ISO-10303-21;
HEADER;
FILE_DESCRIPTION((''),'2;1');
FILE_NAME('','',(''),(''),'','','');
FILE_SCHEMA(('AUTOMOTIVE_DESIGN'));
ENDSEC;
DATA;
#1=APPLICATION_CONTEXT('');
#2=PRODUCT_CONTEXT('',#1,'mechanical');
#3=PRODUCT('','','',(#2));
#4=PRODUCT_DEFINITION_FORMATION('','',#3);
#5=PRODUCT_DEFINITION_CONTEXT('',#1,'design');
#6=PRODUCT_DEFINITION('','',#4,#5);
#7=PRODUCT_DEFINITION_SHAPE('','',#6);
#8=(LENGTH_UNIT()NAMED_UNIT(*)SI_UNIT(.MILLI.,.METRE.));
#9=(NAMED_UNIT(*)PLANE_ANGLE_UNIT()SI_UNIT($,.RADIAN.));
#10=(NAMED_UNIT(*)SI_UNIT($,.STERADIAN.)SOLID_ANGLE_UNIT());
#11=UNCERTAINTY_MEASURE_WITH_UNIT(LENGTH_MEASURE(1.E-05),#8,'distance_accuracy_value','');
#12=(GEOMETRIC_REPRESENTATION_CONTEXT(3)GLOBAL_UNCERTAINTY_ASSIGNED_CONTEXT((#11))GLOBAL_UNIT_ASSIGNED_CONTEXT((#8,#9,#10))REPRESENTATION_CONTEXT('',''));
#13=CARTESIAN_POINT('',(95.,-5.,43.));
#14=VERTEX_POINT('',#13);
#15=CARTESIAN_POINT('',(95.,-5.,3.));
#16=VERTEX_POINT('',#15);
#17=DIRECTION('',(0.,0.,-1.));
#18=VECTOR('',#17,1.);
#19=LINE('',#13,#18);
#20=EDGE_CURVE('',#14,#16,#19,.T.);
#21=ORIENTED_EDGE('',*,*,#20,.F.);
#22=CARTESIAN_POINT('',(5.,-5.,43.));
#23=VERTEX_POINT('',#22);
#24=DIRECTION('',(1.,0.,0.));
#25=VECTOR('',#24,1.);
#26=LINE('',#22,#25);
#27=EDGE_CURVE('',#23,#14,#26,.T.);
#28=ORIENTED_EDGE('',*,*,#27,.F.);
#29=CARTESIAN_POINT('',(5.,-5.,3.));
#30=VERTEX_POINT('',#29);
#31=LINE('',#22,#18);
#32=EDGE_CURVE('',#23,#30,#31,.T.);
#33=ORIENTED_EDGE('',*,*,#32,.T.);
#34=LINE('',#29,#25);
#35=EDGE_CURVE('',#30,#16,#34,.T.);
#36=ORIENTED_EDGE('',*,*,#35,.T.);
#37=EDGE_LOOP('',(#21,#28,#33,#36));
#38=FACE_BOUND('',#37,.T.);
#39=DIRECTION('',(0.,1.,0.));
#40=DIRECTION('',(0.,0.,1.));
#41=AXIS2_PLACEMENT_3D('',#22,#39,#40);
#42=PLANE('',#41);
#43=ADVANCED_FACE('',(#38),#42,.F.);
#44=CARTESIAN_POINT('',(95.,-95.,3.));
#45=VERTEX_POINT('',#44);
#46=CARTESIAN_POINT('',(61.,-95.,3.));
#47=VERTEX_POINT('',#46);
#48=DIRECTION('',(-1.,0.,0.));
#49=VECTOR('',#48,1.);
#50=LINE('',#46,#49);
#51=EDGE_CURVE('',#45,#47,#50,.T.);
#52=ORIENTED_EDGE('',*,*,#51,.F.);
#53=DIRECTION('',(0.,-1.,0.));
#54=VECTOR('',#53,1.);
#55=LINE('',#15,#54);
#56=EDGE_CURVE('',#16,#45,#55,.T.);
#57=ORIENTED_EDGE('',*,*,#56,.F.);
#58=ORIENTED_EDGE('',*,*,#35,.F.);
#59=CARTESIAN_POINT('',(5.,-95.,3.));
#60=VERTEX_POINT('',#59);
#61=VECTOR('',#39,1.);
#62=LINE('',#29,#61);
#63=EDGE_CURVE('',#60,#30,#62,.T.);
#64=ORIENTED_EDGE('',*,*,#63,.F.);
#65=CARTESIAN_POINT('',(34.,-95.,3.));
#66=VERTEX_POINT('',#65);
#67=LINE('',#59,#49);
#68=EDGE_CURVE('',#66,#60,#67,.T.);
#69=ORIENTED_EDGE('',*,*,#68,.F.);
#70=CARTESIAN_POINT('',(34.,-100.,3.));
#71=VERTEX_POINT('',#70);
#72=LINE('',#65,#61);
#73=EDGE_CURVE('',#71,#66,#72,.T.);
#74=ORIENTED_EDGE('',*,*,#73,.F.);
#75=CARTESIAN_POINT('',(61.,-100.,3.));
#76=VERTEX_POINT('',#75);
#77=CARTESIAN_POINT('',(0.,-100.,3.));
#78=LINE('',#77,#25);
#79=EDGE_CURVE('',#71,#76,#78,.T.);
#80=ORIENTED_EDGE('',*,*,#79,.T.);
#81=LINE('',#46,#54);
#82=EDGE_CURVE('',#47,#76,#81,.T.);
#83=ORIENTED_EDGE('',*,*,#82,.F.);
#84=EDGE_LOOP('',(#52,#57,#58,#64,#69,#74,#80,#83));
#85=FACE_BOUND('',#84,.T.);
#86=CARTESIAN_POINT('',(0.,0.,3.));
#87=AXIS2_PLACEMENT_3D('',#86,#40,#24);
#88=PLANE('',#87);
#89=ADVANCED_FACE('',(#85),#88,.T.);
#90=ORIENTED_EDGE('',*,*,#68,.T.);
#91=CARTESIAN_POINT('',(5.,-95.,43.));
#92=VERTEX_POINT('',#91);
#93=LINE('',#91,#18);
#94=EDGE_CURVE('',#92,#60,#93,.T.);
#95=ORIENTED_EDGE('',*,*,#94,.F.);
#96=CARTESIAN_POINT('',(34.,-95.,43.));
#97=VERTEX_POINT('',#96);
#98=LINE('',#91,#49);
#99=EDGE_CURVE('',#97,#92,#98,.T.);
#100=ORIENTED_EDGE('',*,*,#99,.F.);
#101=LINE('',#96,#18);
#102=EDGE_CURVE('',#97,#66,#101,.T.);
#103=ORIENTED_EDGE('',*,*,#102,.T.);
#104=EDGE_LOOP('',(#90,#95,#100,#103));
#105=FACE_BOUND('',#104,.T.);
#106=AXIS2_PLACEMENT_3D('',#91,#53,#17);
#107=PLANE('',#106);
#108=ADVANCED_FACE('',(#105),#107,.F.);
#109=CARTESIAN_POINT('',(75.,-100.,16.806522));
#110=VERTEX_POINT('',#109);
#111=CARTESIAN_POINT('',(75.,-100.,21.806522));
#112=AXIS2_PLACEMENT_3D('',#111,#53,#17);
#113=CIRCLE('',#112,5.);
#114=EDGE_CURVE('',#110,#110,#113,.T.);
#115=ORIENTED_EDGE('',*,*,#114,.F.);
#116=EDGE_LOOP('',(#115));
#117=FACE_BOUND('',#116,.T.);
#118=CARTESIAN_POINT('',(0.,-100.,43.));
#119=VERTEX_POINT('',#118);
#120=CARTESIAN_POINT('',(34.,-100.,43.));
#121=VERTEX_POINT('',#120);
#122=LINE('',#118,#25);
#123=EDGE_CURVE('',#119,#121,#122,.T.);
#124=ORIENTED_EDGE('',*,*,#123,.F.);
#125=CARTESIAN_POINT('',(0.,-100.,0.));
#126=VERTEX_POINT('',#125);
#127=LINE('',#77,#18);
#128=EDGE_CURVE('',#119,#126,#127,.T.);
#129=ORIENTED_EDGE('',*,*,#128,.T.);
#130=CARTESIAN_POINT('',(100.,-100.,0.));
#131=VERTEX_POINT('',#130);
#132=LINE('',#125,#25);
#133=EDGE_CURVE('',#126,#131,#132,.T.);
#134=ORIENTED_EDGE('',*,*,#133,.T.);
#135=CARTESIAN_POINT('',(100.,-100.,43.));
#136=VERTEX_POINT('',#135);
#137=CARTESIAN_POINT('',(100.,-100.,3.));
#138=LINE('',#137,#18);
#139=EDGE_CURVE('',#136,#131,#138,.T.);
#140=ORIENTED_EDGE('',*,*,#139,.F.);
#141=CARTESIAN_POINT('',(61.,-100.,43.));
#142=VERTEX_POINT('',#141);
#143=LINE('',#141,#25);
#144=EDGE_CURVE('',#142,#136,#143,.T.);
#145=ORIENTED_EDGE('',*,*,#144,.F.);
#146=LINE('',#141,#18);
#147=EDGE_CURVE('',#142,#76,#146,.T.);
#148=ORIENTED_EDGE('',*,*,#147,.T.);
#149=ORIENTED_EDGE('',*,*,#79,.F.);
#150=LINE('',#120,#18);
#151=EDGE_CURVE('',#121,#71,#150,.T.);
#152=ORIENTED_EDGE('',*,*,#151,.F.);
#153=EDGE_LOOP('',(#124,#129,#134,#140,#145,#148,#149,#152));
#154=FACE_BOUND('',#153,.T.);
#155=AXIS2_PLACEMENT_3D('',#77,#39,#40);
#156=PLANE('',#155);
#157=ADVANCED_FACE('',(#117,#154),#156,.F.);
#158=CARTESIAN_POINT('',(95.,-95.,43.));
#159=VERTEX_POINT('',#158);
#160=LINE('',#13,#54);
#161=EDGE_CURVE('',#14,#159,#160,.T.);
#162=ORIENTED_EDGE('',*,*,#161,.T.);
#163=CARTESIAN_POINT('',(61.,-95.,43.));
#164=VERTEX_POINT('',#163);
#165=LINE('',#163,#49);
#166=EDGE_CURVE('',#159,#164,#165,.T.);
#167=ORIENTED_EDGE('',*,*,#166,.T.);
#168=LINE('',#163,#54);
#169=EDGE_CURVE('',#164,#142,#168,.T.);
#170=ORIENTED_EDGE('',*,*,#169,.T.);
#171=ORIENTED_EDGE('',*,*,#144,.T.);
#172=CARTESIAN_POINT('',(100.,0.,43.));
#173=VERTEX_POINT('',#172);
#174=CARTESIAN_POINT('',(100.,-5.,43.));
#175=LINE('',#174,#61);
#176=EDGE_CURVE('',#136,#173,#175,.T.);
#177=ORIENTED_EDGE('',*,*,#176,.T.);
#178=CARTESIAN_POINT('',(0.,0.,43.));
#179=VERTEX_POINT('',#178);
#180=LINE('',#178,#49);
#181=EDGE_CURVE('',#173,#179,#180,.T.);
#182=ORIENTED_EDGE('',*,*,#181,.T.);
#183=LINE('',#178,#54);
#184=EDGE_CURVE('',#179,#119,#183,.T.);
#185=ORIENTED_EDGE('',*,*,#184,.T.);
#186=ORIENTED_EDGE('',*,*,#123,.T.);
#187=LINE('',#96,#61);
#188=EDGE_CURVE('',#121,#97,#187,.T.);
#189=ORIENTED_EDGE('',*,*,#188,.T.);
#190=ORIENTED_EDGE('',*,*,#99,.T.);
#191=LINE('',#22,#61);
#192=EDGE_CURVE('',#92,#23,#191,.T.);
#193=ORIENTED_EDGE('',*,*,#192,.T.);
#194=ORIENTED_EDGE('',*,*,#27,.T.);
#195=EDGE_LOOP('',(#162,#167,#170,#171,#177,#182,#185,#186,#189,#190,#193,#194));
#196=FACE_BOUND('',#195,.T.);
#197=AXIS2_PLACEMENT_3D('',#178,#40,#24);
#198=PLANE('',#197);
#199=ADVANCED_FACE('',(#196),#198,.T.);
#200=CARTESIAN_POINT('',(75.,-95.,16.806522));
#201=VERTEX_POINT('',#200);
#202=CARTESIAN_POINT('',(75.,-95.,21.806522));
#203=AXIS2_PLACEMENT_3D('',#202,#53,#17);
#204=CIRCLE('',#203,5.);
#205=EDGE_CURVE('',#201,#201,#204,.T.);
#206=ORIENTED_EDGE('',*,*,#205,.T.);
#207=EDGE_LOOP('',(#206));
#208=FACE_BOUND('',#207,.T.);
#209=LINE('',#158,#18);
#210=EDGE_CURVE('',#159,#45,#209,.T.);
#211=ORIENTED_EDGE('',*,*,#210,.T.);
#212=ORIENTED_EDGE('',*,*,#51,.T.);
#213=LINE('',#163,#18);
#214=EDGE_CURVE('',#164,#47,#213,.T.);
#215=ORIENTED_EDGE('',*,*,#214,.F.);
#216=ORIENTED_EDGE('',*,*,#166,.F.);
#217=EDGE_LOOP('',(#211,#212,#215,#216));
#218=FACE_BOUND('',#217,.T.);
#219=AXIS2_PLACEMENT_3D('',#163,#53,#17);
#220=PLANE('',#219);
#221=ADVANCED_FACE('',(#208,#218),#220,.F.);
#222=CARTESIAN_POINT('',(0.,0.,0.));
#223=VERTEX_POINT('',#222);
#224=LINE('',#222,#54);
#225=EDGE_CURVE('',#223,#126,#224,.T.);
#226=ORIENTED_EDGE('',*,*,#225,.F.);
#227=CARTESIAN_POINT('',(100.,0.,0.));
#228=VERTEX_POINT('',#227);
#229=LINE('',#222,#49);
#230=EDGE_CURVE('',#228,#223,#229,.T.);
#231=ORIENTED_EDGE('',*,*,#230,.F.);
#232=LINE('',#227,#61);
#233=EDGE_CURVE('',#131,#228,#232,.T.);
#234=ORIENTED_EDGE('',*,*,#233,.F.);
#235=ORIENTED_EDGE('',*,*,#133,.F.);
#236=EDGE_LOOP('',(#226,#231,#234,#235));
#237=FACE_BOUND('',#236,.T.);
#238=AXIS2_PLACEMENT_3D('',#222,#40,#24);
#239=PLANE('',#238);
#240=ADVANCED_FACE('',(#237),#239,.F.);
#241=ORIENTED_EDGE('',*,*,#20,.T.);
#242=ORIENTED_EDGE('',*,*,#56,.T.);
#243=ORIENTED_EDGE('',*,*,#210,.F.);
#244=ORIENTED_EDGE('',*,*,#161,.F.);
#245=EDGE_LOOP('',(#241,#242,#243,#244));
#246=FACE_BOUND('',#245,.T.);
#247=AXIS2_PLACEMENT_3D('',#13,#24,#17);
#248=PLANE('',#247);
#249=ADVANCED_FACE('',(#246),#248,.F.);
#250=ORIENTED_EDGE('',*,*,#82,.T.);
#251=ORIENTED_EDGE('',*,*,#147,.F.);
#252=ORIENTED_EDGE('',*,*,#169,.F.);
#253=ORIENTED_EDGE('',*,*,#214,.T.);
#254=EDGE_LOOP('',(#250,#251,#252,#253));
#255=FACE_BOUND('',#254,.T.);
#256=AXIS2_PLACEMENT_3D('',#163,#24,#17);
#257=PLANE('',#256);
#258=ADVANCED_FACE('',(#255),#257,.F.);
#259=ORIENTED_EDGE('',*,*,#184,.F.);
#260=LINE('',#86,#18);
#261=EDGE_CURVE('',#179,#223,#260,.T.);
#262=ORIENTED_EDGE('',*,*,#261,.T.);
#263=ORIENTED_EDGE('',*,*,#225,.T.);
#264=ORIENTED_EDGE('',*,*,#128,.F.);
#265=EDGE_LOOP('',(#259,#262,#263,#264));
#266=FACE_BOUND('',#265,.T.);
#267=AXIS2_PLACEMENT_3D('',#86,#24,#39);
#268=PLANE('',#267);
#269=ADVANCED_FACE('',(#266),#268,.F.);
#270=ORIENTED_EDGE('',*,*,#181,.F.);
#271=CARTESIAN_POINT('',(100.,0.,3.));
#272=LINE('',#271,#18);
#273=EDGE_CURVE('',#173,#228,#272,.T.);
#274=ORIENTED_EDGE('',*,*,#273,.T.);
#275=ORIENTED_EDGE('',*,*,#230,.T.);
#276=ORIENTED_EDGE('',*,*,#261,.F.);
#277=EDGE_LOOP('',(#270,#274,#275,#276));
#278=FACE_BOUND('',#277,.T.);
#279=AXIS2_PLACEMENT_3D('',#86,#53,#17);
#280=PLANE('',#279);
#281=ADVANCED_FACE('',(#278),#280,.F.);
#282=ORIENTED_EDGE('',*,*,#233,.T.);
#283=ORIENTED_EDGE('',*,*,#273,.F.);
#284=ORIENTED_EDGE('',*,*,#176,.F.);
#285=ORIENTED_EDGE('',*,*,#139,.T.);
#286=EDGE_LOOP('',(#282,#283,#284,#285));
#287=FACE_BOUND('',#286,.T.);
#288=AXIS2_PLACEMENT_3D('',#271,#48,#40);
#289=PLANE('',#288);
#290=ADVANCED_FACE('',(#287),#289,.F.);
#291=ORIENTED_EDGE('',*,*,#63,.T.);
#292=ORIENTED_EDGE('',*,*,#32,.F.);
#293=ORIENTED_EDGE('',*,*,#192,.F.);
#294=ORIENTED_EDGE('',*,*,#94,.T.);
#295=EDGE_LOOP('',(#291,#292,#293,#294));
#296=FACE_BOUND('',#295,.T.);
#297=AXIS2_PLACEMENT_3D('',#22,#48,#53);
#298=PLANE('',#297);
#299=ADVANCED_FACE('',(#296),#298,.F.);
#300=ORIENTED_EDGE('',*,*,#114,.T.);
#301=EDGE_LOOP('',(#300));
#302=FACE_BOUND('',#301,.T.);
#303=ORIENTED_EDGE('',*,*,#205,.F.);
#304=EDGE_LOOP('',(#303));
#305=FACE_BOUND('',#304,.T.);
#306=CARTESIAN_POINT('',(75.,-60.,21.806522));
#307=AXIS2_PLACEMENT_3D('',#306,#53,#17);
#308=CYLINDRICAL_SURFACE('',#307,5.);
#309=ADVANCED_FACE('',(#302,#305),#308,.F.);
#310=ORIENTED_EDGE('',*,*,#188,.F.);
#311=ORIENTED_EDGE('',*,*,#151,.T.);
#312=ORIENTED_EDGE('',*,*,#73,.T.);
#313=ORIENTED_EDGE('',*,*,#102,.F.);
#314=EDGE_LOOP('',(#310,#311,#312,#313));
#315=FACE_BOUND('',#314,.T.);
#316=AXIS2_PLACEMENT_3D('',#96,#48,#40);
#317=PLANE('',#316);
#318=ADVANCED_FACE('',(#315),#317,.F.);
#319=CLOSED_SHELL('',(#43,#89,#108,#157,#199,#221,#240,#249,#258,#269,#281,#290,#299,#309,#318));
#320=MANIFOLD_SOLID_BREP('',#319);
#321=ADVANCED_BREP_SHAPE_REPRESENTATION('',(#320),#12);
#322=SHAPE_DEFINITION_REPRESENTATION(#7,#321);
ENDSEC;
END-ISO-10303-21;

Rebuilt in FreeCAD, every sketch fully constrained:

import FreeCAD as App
import Part
import Sketcher
Q = App.Units.Quantity

doc = App.newDocument("Part")
body = doc.addObject("PartDesign::Body", "Body")

# Sketch on XY plane
sketch1 = body.newObject("Sketcher::SketchObject", "Sketch")
sketch1.AttachmentSupport = (doc.getObject("XY_Plane"), [""])
sketch1.MapMode = "FlatFace"
sketch1.addGeometry([
    Part.LineSegment(App.Vector(0, 0, 0), App.Vector(0, -100, 0)),
    Part.LineSegment(App.Vector(0, -100, 0), App.Vector(100, -100, 0)),
    Part.LineSegment(App.Vector(100, -100, 0), App.Vector(100, 0, 0)),
    Part.LineSegment(App.Vector(100, 0, 0), App.Vector(0, 0, 0)),
], False)
sketch1.addConstraint([
    Sketcher.Constraint("Coincident", 0, 2, 1, 1),
    Sketcher.Constraint("Coincident", 1, 2, 2, 1),
    Sketcher.Constraint("Coincident", 2, 2, 3, 1),
    Sketcher.Constraint("Coincident", 3, 2, 0, 1),
    Sketcher.Constraint("Vertical", 0),
    Sketcher.Constraint("Horizontal", 1),
    Sketcher.Constraint("Vertical", 2),
    Sketcher.Constraint("Horizontal", 3),
    Sketcher.Constraint("Coincident", 3, 2, -1, 1),
    Sketcher.Constraint("Equal", 3, 0),
    Sketcher.Constraint("DistanceX", 1, 1, 1, 2, Q("100 mm")),
])
pad1 = body.newObject("PartDesign::Pad", "Pad")
pad1.Profile = sketch1
pad1.Length = 3

# Sketch on XY plane
sketch2 = body.newObject("Sketcher::SketchObject", "Sketch001")
sketch2.AttachmentSupport = (doc.getObject("XY_Plane"), [""])
sketch2.MapMode = "FlatFace"
sketch2.AttachmentOffset = App.Placement(App.Vector(0, 0, 3), App.Rotation())
sketch2.addGeometry([
    Part.LineSegment(App.Vector(100, 0, 0), App.Vector(0, 0, 0)),  # 0
    Part.LineSegment(App.Vector(0, 0, 0), App.Vector(0, -100, 0)),  # 1
    Part.LineSegment(App.Vector(0, -100, 0), App.Vector(34, -100, 0)),  # 2
    Part.LineSegment(App.Vector(34, -100, 0), App.Vector(34, -95, 0)),  # 3
    Part.LineSegment(App.Vector(34, -95, 0), App.Vector(5, -95, 0)),  # 4
    Part.LineSegment(App.Vector(5, -95, 0), App.Vector(5, -5, 0)),  # 5
    Part.LineSegment(App.Vector(5, -5, 0), App.Vector(95, -5, 0)),  # 6
    Part.LineSegment(App.Vector(95, -5, 0), App.Vector(95, -95, 0)),  # 7
    Part.LineSegment(App.Vector(95, -95, 0), App.Vector(61, -95, 0)),  # 8
    Part.LineSegment(App.Vector(61, -95, 0), App.Vector(61, -100, 0)),  # 9
    Part.LineSegment(App.Vector(61, -100, 0), App.Vector(100, -100, 0)),  # 10
    Part.LineSegment(App.Vector(100, -100, 0), App.Vector(100, 0, 0)),  # 11
], False)
sketch2.addConstraint([
    Sketcher.Constraint("Coincident", 0, 2, 1, 1),
    Sketcher.Constraint("Coincident", 1, 2, 2, 1),
    Sketcher.Constraint("Coincident", 2, 2, 3, 1),
    Sketcher.Constraint("Coincident", 3, 2, 4, 1),
    Sketcher.Constraint("Coincident", 4, 2, 5, 1),
    Sketcher.Constraint("Coincident", 5, 2, 6, 1),
    Sketcher.Constraint("Coincident", 6, 2, 7, 1),
    Sketcher.Constraint("Coincident", 7, 2, 8, 1),
    Sketcher.Constraint("Coincident", 8, 2, 9, 1),
    Sketcher.Constraint("Coincident", 9, 2, 10, 1),
    Sketcher.Constraint("Coincident", 10, 2, 11, 1),
    Sketcher.Constraint("Coincident", 11, 2, 0, 1),
    Sketcher.Constraint("Horizontal", 0),
    Sketcher.Constraint("Vertical", 1),
    Sketcher.Constraint("Horizontal", 2),
    Sketcher.Constraint("Vertical", 3),
    Sketcher.Constraint("Horizontal", 4),
    Sketcher.Constraint("Vertical", 5),
    Sketcher.Constraint("Horizontal", 6),
    Sketcher.Constraint("Vertical", 7),
    Sketcher.Constraint("Horizontal", 8),
    Sketcher.Constraint("Vertical", 9),
    Sketcher.Constraint("Horizontal", 10),
    Sketcher.Constraint("Vertical", 11),
    Sketcher.Constraint("Coincident", 0, 2, -1, 1),
    Sketcher.Constraint("Horizontal", 4, 2, 7, 2),
    Sketcher.Constraint("Horizontal", 2, 2, 9, 2),
    Sketcher.Constraint("Equal", 2, 8),
    Sketcher.Constraint("Equal", 0, 1),
    Sketcher.Constraint("Equal", 6, 5),
    Sketcher.Constraint("DistanceX", 0, 2, 0, 1, Q("100 mm")),
    Sketcher.Constraint("DistanceX", 2, 1, 2, 2, Q("34 mm")),
    Sketcher.Constraint("DistanceX", 4, 2, 4, 1, Q("29 mm")),
    Sketcher.Constraint("DistanceX", 6, 1, 6, 2, Q("90 mm")),
    Sketcher.Constraint("DistanceY", 3, 1, 3, 2, Q("5 mm")),
])
pad2 = body.newObject("PartDesign::Pad", "Pad001")
pad2.Profile = sketch2
pad2.Length = 40

# Sketch on XZ plane
sketch3 = body.newObject("Sketcher::SketchObject", "Sketch002")
sketch3.AttachmentSupport = (doc.getObject("XZ_Plane"), [""])
sketch3.MapMode = "FlatFace"
sketch3.AttachmentOffset = App.Placement(App.Vector(0, 0, 100), App.Rotation())
sketch3.addGeometry(Part.Circle(App.Vector(75, 21.806522, 0), App.Vector(0, 0, 1), 5), False)
sketch3.addConstraint([
    Sketcher.Constraint("Diameter", 0, Q("10 mm")),
    Sketcher.Constraint("DistanceX", -1, 1, 0, 3, Q("75 mm")),
    Sketcher.Constraint("DistanceY", -1, 1, 0, 3, Q("21.806522 mm")),
])
pocket1 = body.newObject("PartDesign::Pocket", "Pocket")
pocket1.Profile = sketch3
pocket1.Length = 40

doc.recompute()
